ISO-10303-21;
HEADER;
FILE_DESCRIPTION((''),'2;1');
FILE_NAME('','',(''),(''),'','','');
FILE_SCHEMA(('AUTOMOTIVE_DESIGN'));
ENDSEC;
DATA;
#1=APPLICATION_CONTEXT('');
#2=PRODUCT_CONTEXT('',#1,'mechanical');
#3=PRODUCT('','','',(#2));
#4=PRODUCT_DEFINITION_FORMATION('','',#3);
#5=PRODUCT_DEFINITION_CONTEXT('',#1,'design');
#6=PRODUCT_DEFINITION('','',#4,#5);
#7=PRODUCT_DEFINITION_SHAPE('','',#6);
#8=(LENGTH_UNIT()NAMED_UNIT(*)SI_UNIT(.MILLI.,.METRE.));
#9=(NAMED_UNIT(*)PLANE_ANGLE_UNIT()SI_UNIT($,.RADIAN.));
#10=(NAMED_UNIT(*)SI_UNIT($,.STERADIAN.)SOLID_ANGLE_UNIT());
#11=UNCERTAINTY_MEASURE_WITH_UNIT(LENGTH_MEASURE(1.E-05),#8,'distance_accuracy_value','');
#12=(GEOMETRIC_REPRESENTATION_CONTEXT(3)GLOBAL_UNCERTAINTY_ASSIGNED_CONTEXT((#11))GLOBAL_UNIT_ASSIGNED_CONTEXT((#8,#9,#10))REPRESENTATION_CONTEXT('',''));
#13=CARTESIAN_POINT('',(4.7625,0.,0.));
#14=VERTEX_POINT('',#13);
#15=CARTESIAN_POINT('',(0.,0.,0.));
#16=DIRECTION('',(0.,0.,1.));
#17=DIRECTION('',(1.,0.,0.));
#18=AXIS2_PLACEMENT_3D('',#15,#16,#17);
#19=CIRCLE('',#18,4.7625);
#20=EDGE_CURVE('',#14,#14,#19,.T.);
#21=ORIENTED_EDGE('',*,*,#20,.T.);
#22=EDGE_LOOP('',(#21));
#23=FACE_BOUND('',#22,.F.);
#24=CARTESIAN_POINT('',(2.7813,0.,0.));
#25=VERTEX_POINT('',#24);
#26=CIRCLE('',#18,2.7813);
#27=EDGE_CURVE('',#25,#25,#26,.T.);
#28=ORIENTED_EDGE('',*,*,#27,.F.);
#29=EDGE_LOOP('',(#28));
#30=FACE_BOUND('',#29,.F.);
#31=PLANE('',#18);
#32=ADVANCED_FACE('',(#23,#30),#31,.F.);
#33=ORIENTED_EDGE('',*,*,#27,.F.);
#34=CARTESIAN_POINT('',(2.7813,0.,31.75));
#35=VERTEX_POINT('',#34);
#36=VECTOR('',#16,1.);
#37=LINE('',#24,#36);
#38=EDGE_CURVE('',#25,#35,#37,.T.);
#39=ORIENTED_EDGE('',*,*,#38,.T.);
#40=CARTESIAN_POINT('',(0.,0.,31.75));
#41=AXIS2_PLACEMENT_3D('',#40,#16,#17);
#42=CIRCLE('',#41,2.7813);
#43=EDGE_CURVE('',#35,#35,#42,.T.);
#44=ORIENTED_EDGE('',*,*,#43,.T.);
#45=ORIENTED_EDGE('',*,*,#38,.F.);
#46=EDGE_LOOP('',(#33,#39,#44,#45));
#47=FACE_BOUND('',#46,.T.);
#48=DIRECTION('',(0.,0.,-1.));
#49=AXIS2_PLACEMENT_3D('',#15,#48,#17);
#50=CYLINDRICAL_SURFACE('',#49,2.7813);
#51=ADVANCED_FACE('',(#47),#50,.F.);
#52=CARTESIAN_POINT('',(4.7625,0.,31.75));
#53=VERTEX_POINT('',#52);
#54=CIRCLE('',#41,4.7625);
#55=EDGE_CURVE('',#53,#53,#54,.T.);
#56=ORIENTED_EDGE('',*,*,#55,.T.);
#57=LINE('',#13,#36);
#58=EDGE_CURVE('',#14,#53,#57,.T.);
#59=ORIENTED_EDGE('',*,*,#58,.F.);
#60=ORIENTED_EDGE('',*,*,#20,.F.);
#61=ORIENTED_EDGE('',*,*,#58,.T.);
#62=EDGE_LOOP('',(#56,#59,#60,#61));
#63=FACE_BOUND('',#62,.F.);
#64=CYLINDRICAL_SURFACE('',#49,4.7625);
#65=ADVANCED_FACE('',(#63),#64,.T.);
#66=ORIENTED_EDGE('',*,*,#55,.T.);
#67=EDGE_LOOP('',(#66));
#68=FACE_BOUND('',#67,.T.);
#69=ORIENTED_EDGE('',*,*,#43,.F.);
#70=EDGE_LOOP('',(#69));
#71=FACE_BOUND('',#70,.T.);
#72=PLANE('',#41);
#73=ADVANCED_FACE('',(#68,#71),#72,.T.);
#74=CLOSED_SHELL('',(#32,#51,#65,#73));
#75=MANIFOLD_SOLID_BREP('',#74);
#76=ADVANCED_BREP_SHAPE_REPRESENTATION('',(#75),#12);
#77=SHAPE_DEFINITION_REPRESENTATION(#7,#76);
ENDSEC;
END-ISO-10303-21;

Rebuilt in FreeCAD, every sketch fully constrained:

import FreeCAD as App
import Part
import Sketcher

V = App.Vector
Q = App.Units.Quantity

doc = App.newDocument("Part")
body = doc.addObject("PartDesign::Body", "Body")

# Sketch on XY plane
sketch1 = body.newObject("Sketcher::SketchObject", "Sketch")
sketch1.AttachmentSupport = (doc.getObject("XY_Plane"), [""])
sketch1.MapMode = "FlatFace"
sketch1.addGeometry(Part.Circle(V(0, 0, 0), V(0, 0, 1), 4.8), False)
sketch1.addGeometry(Part.Circle(V(0, 0, 0), V(0, 0, 1), 2.8), False)
sketch1.addConstraint(Sketcher.Constraint("Coincident", 0, 3, -1, 1))
sketch1.addConstraint(Sketcher.Constraint("Coincident", 1, 3, -1, 1))
sketch1.addConstraint(Sketcher.Constraint("Diameter", 0, Q("0.375 in")))
sketch1.addConstraint(Sketcher.Constraint("Diameter", 1, Q("0.219 in")))
pad1 = body.newObject("PartDesign::Pad", "Pad")
pad1.Profile = sketch1
pad1.Length = Q("1.25 in")

doc.recompute()
